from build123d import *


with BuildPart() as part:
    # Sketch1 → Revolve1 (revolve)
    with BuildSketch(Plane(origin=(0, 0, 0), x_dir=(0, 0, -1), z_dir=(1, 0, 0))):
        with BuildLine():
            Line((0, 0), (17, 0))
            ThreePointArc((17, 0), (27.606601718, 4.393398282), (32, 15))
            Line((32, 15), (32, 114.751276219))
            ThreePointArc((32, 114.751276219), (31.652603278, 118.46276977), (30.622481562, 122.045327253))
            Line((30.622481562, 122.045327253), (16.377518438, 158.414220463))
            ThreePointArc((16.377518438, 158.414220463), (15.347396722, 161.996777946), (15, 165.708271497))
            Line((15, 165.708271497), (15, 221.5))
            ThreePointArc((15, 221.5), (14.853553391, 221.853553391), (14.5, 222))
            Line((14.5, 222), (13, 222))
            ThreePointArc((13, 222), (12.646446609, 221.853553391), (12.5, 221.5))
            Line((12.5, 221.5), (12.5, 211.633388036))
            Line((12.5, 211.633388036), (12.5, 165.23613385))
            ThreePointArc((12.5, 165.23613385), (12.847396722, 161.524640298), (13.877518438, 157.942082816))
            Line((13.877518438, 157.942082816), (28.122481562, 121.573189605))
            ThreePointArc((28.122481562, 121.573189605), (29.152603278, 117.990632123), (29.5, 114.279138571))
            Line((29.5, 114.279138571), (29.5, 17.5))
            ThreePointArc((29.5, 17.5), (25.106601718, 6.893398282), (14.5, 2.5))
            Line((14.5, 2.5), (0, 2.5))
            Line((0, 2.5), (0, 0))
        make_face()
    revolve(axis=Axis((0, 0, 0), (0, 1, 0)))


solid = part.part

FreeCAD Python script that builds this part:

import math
import FreeCAD as App
import Part
import Sketcher

doc = App.newDocument("Part")
body = doc.addObject("PartDesign::Body", "Body")

# Sketch on YZ plane
sketch1 = doc.addObject("Sketcher::SketchObject", "Sketch")
body.addObject(sketch1)
sketch1.AttachmentSupport = (doc.YZ_Plane, [""])
sketch1.MapMode = "FlatFace"
sketch1.addGeometry(Part.LineSegment(App.Vector(0, 0, 0), App.Vector(0, -17, 0)), False)
sketch1.addGeometry(Part.ArcOfCircle(Part.Circle(App.Vector(15, -17, 0), App.Vector(0, 0, 1), 15), math.radians(180), math.radians(270)), False)
sketch1.addGeometry(Part.LineSegment(App.Vector(15, -32, 0), App.Vector(114.75, -32, 0)), False)
sketch1.addGeometry(Part.ArcOfCircle(Part.Circle(App.Vector(114.75, -12, 0), App.Vector(0, 0, 1), 20), math.radians(-90), math.radians(-69)), False)
sketch1.addGeometry(Part.LineSegment(App.Vector(122.05, -30.62, 0), App.Vector(158.41, -16.38, 0)), False)
sketch1.addGeometry(Part.ArcOfCircle(Part.Circle(App.Vector(165.71, -35, 0), App.Vector(0, 0, 1), 20), math.radians(90), math.radians(111)), False)
sketch1.addGeometry(Part.LineSegment(App.Vector(165.71, -15, 0), App.Vector(221.5, -15, 0)), False)
sketch1.addGeometry(Part.ArcOfCircle(Part.Circle(App.Vector(221.5, -14.5, 0), App.Vector(0, 0, 1), 0.5), math.radians(-90), math.radians(0)), False)
sketch1.addGeometry(Part.LineSegment(App.Vector(222, -14.5, 0), App.Vector(222, -13, 0)), False)
sketch1.addGeometry(Part.ArcOfCircle(Part.Circle(App.Vector(221.5, -13, 0), App.Vector(0, 0, 1), 0.5), math.radians(0), math.radians(90)), False)
sketch1.addGeometry(Part.LineSegment(App.Vector(221.5, -12.5, 0), App.Vector(165.24, -12.5, 0)), False)
sketch1.addGeometry(Part.ArcOfCircle(Part.Circle(App.Vector(165.24, -32.5, 0), App.Vector(0, 0, 1), 20), math.radians(90), math.radians(111)), False)
sketch1.addGeometry(Part.LineSegment(App.Vector(157.94, -13.88, 0), App.Vector(121.57, -28.12, 0)), False)
sketch1.addGeometry(Part.ArcOfCircle(Part.Circle(App.Vector(114.28, -9.5, 0), App.Vector(0, 0, 1), 20), math.radians(-90), math.radians(-69)), False)
sketch1.addGeometry(Part.LineSegment(App.Vector(114.28, -29.5, 0), App.Vector(17.5, -29.5, 0)), False)
sketch1.addGeometry(Part.ArcOfCircle(Part.Circle(App.Vector(17.5, -14.5, 0), App.Vector(0, 0, 1), 15), math.radians(180), math.radians(270)), False)
sketch1.addGeometry(Part.LineSegment(App.Vector(2.5, -14.5, 0), App.Vector(2.5, 0, 0)), False)
sketch1.addGeometry(Part.LineSegment(App.Vector(2.5, 0, 0), App.Vector(0, 0, 0)), False)
sketch1.addConstraint(Sketcher.Constraint("Tangent", 0, 2, 1, 1))
sketch1.addConstraint(Sketcher.Constraint("Tangent", 1, 2, 2, 1))
sketch1.addConstraint(Sketcher.Constraint("Tangent", 2, 2, 3, 1))
sketch1.addConstraint(Sketcher.Constraint("Tangent", 3, 2, 4, 1))
sketch1.addConstraint(Sketcher.Constraint("Tangent", 4, 2, 5, 2))
sketch1.addConstraint(Sketcher.Constraint("Tangent", 5, 1, 6, 1))
sketch1.addConstraint(Sketcher.Constraint("Tangent", 6, 2, 7, 1))
sketch1.addConstraint(Sketcher.Constraint("Tangent", 7, 2, 8, 1))
sketch1.addConstraint(Sketcher.Constraint("Tangent", 8, 2, 9, 1))
sketch1.addConstraint(Sketcher.Constraint("Tangent", 9, 2, 10, 1))
sketch1.addConstraint(Sketcher.Constraint("Tangent", 10, 2, 11, 1))
sketch1.addConstraint(Sketcher.Constraint("Tangent", 11, 2, 12, 1))
sketch1.addConstraint(Sketcher.Constraint("Tangent", 12, 2, 13, 2))
sketch1.addConstraint(Sketcher.Constraint("Tangent", 13, 1, 14, 1))
sketch1.addConstraint(Sketcher.Constraint("Tangent", 14, 2, 15, 2))
sketch1.addConstraint(Sketcher.Constraint("Tangent", 15, 1, 16, 1))
sketch1.addConstraint(Sketcher.Constraint("Coincident", 16, 2, 17, 1))
sketch1.addConstraint(Sketcher.Constraint("Coincident", 17, 2, 0, 1))
sketch1.addConstraint(Sketcher.Constraint("Vertical", 0))
sketch1.addConstraint(Sketcher.Constraint("Horizontal", 2))
sketch1.addConstraint(Sketcher.Constraint("Horizontal", 6))
sketch1.addConstraint(Sketcher.Constraint("Vertical", 8))
sketch1.addConstraint(Sketcher.Constraint("Horizontal", 10))
sketch1.addConstraint(Sketcher.Constraint("Horizontal", 14))
sketch1.addConstraint(Sketcher.Constraint("Vertical", 16))
sketch1.addConstraint(Sketcher.Constraint("Horizontal", 17))
sketch1.addConstraint(Sketcher.Constraint("Coincident", 17, 2, -1, 1))
sketch1.addConstraint(Sketcher.Constraint("Equal", 3, 5))
sketch1.addConstraint(Sketcher.Constraint("Equal", 7, 9))
sketch1.addConstraint(Sketcher.Constraint("Equal", 5, 11))
sketch1.addConstraint(Sketcher.Constraint("Equal", 11, 13))
sketch1.addConstraint(Sketcher.Constraint("Equal", 1, 15))
sketch1.addConstraint(Sketcher.Constraint("Parallel", 4, 12))
sketch1.addConstraint(Sketcher.Constraint("Horizontal", 7, 3, 15, 3))
sketch1.addConstraint(Sketcher.Constraint("Equal", 4, 12))
sketch1.addConstraint(Sketcher.Constraint("Radius", 1, 15.0))
sketch1.addConstraint(Sketcher.Constraint("Radius", 3, 20.0))
sketch1.addConstraint(Sketcher.Constraint("Radius", 7, 0.5))
sketch1.addConstraint(Sketcher.Constraint("DistanceY", 0, 2, 0, 1, 17.0))
sketch1.addConstraint(Sketcher.Constraint("DistanceX", 17, 2, 17, 1, 2.5))
sketch1.addConstraint(Sketcher.Constraint("DistanceY", 8, 1, 8, 2, 1.5))
sketch1.addConstraint(Sketcher.Constraint("DistanceX", -1, 1, 7, 2, 222.0))
sketch1.addConstraint(Sketcher.Constraint("DistanceX", 6, 1, 6, 2, 55.791729))
sketch1.addConstraint(Sketcher.Constraint("DistanceX", 14, 2, 14, 1, 96.779139))
sketch1.addConstraint(Sketcher.Constraint("DistanceX", 2, 1, 2, 2, 99.751276))
revolution = doc.addObject("PartDesign::Revolution", "Revolution")
body.addObject(revolution)
revolution.Profile = sketch1
revolution.ReferenceAxis = (sketch1, ["H_Axis"])
revolution.Angle = 360

doc.recompute()
